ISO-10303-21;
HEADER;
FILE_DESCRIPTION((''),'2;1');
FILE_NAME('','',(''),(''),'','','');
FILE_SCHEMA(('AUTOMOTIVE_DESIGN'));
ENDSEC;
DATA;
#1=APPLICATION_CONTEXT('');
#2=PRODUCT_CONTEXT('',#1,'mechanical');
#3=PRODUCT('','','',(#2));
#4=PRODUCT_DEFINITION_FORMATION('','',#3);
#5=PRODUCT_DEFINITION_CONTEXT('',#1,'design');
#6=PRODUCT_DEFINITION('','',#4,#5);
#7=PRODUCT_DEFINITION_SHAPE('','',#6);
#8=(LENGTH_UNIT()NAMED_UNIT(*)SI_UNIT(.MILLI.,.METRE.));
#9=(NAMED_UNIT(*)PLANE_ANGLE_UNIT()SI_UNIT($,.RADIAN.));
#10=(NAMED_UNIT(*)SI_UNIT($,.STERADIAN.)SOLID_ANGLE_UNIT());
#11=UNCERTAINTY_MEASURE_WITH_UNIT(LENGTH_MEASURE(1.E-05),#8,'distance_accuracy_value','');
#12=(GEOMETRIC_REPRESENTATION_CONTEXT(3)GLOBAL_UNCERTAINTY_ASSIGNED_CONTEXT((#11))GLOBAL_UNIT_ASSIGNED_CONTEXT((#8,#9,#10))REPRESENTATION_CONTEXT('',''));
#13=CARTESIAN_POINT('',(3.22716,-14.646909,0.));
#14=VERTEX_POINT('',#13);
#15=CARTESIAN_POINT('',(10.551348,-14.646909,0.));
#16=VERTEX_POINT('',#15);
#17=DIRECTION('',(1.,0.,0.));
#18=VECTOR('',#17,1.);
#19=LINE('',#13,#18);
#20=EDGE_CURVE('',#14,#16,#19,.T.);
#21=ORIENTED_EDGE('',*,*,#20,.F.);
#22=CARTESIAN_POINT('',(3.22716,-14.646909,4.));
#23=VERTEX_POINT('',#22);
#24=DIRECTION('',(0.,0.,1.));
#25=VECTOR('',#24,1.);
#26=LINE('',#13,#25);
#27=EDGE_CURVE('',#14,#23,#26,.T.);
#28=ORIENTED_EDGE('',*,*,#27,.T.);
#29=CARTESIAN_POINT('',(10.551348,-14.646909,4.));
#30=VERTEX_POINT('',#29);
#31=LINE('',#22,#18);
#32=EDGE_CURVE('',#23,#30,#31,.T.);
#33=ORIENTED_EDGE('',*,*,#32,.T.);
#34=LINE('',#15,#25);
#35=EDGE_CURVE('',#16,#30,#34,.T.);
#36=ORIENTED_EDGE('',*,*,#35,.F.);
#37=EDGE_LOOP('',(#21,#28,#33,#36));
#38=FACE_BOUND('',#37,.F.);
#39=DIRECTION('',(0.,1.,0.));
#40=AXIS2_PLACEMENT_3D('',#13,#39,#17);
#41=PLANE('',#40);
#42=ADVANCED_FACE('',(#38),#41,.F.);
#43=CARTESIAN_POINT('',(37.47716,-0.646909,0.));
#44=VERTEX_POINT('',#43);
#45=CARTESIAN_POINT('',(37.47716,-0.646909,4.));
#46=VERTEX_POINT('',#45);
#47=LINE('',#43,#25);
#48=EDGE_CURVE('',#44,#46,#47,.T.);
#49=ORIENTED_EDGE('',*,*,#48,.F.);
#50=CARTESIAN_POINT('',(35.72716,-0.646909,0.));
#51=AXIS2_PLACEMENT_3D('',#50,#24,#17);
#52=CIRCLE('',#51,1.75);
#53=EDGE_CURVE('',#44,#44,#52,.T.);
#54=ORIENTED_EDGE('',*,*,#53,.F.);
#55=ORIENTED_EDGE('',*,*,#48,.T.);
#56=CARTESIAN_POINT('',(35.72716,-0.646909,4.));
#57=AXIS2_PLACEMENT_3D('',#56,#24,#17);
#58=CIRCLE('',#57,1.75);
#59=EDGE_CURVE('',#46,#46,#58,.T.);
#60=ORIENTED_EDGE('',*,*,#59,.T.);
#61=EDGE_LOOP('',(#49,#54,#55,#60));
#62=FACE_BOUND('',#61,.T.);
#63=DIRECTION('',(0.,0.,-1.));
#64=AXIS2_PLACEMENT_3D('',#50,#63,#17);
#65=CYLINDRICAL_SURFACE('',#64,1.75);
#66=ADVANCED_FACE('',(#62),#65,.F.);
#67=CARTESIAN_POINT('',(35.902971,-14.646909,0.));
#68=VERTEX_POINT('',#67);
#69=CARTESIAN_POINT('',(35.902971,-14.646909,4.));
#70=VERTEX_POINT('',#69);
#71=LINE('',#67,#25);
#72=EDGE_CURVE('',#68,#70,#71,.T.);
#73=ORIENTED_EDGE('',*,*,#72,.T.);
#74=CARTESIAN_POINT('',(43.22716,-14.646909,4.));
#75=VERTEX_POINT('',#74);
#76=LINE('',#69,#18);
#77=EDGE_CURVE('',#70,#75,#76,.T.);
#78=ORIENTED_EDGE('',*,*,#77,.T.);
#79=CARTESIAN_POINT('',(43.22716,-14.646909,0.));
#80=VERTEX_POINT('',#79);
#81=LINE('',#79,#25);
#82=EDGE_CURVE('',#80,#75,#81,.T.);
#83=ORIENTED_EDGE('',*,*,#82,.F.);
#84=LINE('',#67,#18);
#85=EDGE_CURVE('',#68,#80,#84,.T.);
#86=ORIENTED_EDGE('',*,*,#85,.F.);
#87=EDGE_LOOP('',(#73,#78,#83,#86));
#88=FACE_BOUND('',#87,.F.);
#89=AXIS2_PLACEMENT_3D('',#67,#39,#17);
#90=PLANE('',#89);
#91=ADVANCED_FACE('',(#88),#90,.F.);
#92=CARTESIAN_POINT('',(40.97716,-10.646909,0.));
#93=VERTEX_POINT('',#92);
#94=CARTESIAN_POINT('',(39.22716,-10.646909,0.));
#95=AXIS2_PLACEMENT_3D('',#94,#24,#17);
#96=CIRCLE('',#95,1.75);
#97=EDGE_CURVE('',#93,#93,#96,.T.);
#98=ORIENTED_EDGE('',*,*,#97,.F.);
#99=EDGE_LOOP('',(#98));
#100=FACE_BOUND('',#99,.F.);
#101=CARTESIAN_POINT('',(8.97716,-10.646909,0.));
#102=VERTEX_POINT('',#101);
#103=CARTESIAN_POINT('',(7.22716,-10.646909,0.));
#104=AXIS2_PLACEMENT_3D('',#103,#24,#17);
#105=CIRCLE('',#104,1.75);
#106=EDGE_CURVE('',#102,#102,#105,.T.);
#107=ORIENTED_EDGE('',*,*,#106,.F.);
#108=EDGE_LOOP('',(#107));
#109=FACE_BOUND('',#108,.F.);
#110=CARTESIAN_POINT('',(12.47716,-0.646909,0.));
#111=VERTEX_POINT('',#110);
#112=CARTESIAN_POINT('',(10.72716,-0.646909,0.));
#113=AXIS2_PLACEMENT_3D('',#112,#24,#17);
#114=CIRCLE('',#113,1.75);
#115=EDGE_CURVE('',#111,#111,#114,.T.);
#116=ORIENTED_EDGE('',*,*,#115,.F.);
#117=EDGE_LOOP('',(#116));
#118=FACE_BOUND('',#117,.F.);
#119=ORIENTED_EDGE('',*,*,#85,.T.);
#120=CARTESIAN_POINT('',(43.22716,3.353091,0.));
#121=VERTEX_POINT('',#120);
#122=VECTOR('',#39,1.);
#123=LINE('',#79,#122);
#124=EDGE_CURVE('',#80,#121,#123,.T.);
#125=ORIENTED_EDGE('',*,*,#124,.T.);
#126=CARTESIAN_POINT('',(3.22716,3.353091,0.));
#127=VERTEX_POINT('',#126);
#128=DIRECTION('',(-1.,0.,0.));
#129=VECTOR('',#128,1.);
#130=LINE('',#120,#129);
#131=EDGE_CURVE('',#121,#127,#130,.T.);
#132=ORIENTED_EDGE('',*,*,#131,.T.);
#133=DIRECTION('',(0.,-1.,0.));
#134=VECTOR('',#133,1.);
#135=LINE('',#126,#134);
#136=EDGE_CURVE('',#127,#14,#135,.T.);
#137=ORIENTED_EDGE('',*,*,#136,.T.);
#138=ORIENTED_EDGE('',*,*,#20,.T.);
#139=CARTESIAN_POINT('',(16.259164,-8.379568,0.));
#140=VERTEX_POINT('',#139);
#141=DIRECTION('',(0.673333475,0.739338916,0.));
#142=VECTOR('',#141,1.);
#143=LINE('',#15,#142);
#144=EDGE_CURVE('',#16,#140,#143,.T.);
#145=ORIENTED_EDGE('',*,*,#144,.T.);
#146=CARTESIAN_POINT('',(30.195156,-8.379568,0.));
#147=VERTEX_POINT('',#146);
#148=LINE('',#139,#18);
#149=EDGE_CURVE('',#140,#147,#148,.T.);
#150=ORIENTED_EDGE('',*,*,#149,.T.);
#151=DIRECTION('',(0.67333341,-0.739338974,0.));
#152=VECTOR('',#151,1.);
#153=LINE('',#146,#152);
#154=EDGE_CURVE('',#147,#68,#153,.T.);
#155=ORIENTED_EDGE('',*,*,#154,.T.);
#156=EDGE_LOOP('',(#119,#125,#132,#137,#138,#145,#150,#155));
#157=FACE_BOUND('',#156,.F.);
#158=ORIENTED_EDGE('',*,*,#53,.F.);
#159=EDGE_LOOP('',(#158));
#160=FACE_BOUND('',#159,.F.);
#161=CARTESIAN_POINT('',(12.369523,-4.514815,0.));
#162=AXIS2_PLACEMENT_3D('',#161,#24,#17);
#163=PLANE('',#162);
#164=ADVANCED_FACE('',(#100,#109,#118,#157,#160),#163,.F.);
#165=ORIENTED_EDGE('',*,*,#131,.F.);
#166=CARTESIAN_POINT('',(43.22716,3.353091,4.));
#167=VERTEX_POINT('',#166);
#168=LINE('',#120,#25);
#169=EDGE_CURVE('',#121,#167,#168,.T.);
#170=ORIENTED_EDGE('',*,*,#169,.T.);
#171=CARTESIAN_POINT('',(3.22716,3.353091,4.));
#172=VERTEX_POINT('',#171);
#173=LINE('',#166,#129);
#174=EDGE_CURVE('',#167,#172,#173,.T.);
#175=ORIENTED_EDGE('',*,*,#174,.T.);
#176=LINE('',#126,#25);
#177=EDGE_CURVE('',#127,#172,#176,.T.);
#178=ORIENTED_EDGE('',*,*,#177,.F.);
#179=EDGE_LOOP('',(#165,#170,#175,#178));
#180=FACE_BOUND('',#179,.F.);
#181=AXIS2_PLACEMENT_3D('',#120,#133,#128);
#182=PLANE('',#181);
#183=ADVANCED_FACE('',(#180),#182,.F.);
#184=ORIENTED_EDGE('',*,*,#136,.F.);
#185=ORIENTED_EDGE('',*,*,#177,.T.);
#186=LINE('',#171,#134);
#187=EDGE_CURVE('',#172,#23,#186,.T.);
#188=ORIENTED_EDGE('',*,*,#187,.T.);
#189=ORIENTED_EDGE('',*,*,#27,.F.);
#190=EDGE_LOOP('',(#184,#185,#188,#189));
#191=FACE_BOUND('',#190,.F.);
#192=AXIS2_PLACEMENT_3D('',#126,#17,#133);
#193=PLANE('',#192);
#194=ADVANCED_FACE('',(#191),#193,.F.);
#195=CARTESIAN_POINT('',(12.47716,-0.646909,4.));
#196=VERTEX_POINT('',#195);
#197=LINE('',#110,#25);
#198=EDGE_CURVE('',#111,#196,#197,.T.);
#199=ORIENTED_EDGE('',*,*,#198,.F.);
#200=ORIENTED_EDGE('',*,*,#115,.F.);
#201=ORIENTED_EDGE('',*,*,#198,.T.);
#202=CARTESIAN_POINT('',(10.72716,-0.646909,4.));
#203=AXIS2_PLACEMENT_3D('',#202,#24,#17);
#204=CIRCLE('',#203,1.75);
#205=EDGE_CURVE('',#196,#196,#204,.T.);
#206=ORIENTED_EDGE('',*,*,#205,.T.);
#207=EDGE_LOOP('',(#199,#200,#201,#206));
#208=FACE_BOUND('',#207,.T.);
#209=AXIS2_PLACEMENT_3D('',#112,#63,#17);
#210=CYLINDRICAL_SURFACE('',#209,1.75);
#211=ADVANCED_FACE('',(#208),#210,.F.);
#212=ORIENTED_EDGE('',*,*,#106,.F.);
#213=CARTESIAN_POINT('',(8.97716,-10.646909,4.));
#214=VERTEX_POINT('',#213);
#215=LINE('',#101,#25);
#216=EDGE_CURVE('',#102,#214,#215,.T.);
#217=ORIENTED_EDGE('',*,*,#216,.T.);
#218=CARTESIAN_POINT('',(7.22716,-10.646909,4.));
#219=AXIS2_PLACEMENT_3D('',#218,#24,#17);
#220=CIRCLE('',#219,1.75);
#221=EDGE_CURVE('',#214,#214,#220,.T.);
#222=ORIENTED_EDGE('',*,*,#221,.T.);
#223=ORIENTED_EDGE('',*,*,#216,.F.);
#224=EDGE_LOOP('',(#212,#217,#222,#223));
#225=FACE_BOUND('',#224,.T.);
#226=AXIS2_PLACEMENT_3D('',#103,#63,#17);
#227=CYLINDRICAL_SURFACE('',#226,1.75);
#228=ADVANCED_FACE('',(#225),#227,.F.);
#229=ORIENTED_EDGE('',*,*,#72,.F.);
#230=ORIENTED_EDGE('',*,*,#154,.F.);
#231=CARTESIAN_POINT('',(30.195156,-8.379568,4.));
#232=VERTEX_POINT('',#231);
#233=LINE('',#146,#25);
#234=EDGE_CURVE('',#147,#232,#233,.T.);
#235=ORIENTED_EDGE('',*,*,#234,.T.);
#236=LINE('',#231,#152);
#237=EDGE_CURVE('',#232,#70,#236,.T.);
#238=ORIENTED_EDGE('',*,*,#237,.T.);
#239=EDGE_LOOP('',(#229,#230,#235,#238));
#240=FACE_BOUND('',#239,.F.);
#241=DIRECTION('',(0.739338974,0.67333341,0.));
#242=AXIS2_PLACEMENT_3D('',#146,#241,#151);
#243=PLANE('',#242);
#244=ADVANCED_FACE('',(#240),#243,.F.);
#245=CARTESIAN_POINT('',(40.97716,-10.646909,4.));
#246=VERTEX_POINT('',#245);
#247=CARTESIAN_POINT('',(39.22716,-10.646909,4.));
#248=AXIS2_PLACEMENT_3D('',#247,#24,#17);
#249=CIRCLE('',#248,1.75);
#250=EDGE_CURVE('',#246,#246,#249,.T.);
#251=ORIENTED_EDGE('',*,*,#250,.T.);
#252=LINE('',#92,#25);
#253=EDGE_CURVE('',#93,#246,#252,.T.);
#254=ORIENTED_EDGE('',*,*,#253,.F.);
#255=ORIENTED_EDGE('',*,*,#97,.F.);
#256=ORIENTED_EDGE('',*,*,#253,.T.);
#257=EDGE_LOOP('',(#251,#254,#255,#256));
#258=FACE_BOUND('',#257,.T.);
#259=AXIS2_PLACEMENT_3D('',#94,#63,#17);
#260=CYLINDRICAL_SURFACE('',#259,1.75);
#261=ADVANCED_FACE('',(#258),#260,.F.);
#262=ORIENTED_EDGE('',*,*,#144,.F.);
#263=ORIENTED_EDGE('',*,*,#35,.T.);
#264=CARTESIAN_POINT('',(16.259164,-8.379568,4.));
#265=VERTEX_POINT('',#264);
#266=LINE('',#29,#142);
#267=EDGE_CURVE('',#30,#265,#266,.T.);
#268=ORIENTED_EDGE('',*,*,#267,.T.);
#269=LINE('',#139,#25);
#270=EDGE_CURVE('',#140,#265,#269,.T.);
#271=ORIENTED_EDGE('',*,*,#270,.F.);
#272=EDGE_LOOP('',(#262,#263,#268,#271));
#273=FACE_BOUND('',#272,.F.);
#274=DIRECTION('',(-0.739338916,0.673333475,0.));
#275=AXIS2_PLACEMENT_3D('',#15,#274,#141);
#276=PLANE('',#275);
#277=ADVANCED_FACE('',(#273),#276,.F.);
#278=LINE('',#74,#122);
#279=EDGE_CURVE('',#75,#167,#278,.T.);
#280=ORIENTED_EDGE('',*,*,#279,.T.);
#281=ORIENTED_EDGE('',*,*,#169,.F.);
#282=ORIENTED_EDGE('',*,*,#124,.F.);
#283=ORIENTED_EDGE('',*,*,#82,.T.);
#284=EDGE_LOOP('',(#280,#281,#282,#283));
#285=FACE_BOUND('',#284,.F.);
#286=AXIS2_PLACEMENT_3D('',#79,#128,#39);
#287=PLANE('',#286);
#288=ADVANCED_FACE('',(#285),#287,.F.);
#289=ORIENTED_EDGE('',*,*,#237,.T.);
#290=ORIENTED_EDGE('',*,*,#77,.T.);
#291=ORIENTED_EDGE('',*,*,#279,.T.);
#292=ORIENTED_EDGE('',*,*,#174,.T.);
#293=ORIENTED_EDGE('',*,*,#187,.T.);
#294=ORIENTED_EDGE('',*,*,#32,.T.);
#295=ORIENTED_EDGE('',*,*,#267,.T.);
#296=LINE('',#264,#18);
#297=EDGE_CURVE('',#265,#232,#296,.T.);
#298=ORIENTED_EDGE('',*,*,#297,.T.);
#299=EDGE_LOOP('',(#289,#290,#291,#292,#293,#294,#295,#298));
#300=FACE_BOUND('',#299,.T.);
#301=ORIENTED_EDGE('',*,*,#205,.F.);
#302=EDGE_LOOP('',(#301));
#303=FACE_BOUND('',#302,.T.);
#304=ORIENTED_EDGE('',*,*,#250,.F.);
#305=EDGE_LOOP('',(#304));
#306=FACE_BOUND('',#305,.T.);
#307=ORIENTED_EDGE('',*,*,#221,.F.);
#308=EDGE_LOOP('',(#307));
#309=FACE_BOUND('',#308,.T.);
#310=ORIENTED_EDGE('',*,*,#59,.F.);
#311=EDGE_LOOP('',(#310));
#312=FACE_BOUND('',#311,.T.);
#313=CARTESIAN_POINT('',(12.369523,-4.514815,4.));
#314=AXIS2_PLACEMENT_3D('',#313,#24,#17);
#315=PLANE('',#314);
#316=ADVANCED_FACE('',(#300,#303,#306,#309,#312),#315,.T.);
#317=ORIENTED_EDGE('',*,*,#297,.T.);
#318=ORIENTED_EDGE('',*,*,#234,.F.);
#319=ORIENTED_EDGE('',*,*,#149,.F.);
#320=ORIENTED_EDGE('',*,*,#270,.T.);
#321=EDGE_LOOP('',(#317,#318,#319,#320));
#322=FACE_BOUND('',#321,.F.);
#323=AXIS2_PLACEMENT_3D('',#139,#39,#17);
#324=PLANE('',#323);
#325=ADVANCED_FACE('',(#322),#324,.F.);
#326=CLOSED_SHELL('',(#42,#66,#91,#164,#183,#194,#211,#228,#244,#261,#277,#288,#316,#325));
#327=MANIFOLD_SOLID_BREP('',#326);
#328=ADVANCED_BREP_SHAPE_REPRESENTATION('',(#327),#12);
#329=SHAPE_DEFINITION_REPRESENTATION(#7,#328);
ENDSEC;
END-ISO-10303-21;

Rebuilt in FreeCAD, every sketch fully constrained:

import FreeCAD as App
import Part
import Sketcher

V = App.Vector

doc = App.newDocument("Part")
body = doc.addObject("PartDesign::Body", "Body")

sketch1 = doc.addObject("Sketcher::SketchObject", "Sketch")
body.addObject(sketch1)
sketch1.AttachmentSupport = (doc.XY_Plane, [""])
sketch1.MapMode = "FlatFace"
sketch1.addGeometry([
    Part.LineSegment(V(3.2, 3.4, 0), V(3.2, -14.6, 0)),
    Part.LineSegment(V(3.2, -14.6, 0), V(10.6, -14.6, 0)),
    Part.LineSegment(V(10.6, -14.6, 0), V(16.3, -8.4, 0)),
    Part.LineSegment(V(16.3, -8.4, 0), V(30.2, -8.4, 0)),
    Part.LineSegment(V(30.2, -8.4, 0), V(35.9, -14.6, 0)),
    Part.LineSegment(V(35.9, -14.6, 0), V(43.2, -14.6, 0)),
    Part.LineSegment(V(43.2, -14.6, 0), V(43.2, 3.4, 0)),
    Part.LineSegment(V(43.2, 3.4, 0), V(3.2, 3.4, 0)),
    Part.Circle(V(7.2, -10.6, 0), V(0, 0, 1), 1.8),
    Part.Circle(V(39.2, -10.6, 0), V(0, 0, 1), 1.8),
    Part.Circle(V(10.7, -0.6, 0), V(0, 0, 1), 1.8),
    Part.Circle(V(35.7, -0.6, 0), V(0, 0, 1), 1.8),
], False)
sketch1.addConstraint([
    Sketcher.Constraint("Coincident", 0, 2, 1, 1),
    Sketcher.Constraint("Coincident", 1, 2, 2, 1),
    Sketcher.Constraint("Coincident", 2, 2, 3, 1),
    Sketcher.Constraint("Coincident", 3, 2, 4, 1),
    Sketcher.Constraint("Coincident", 4, 2, 5, 1),
    Sketcher.Constraint("Coincident", 5, 2, 6, 1),
    Sketcher.Constraint("Coincident", 6, 2, 7, 1),
    Sketcher.Constraint("Coincident", 7, 2, 0, 1),
    Sketcher.Constraint("Vertical", 0),
    Sketcher.Constraint("Horizontal", 1),
    Sketcher.Constraint("Horizontal", 3),
    Sketcher.Constraint("Horizontal", 5),
    Sketcher.Constraint("Vertical", 6),
    Sketcher.Constraint("Horizontal", 7),
    Sketcher.Constraint("Equal", 8, 9),
    Sketcher.Constraint("Equal", 9, 10),
    Sketcher.Constraint("Equal", 10, 11),
    Sketcher.Constraint("Horizontal", 8, 3, 9, 3),
    Sketcher.Constraint("Horizontal", 10, 3, 11, 3),
    Sketcher.Constraint("Horizontal", 1, 2, 4, 2),
    Sketcher.Constraint("Equal", 1, 5),
    Sketcher.Constraint("Equal", 2, 4),
    Sketcher.Constraint("Diameter", 8, 3.5),
    Sketcher.Constraint("DistanceX", 7, 2, 7, 1, 40.0),
    Sketcher.Constraint("DistanceY", 0, 2, 0, 1, 18.0),
    Sketcher.Constraint("DistanceX", 8, 3, 9, 3, 32.0),
    Sketcher.Constraint("DistanceY", 8, 3, 10, 3, 10.0),
    Sketcher.Constraint("DistanceX", 10, 3, 11, 3, 25.0),
    Sketcher.Constraint("DistanceX", 0, 2, 8, 3, 4.0),
    Sketcher.Constraint("DistanceY", 0, 2, 8, 3, 4.0),
    Sketcher.Constraint("DistanceX", 8, 3, 10, 3, 3.5),
    Sketcher.Constraint("DistanceX", 1, 1, 1, 2, 7.324188),
    Sketcher.Constraint("DistanceX", 3, 1, 3, 2, 13.935992),
    Sketcher.Constraint("DistanceX", -1, 1, 8, 3, 7.22716),
    Sketcher.Constraint("DistanceY", 8, 3, -1, 1, 10.646909),
    Sketcher.Constraint("DistanceY", 2, 2, -1, 1, 8.379568),
])
pad1 = doc.addObject("PartDesign::Pad", "Pad")
body.addObject(pad1)
pad1.Profile = sketch1
pad1.Length = 4

doc.recompute()
